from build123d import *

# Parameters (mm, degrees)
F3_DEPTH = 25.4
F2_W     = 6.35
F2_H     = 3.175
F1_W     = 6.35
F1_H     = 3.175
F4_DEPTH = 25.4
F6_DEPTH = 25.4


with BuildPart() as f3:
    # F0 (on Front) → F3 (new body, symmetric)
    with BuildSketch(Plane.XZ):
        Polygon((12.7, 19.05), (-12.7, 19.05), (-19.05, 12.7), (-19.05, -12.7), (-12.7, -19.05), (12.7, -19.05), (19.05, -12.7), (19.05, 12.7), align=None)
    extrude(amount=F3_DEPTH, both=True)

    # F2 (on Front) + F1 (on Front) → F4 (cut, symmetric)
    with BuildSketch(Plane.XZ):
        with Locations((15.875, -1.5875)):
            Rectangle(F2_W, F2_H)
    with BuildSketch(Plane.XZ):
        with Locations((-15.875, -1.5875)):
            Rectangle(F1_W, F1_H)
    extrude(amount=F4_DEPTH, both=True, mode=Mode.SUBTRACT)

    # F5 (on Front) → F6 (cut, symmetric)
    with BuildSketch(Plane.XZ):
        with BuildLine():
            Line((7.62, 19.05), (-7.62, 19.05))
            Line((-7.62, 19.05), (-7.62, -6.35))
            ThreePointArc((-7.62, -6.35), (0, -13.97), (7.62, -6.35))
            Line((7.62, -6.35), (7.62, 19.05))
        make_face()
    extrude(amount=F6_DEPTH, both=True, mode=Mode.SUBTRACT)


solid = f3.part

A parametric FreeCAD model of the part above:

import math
import FreeCAD as App
import Part
import Sketcher

V = App.Vector
Q = App.Units.Quantity

doc = App.newDocument("Part")
body = doc.addObject("PartDesign::Body", "Body")

sketch1 = body.newObject("Sketcher::SketchObject", "Sketch")
sketch1.AttachmentSupport = (doc.getObject("XZ_Plane"), [""])
sketch1.MapMode = "FlatFace"
sketch1.addGeometry(Part.LineSegment(V(12.7, 19.05, 0), V(-12.7, 19.05, 0)), False)
sketch1.addGeometry(Part.LineSegment(V(-12.7, 19.05, 0), V(-19.05, 12.7, 0)), False)
sketch1.addGeometry(Part.LineSegment(V(-19.05, 12.7, 0), V(-19.05, -12.7, 0)), False)
sketch1.addGeometry(Part.LineSegment(V(-19.05, -12.7, 0), V(-12.7, -19.05, 0)), False)
sketch1.addGeometry(Part.LineSegment(V(-12.7, -19.05, 0), V(12.7, -19.05, 0)), False)
sketch1.addGeometry(Part.LineSegment(V(12.7, -19.05, 0), V(19.05, -12.7, 0)), False)
sketch1.addGeometry(Part.LineSegment(V(19.05, -12.7, 0), V(19.05, 12.7, 0)), False)
sketch1.addGeometry(Part.LineSegment(V(19.05, 12.7, 0), V(12.7, 19.05, 0)), False)
sketch1.addConstraint(Sketcher.Constraint("Coincident", 0, 2, 1, 1))
sketch1.addConstraint(Sketcher.Constraint("Coincident", 1, 2, 2, 1))
sketch1.addConstraint(Sketcher.Constraint("Coincident", 2, 2, 3, 1))
sketch1.addConstraint(Sketcher.Constraint("Coincident", 3, 2, 4, 1))
sketch1.addConstraint(Sketcher.Constraint("Coincident", 4, 2, 5, 1))
sketch1.addConstraint(Sketcher.Constraint("Coincident", 5, 2, 6, 1))
sketch1.addConstraint(Sketcher.Constraint("Coincident", 6, 2, 7, 1))
sketch1.addConstraint(Sketcher.Constraint("Coincident", 7, 2, 0, 1))
sketch1.addConstraint(Sketcher.Constraint("Horizontal", 0))
sketch1.addConstraint(Sketcher.Constraint("Vertical", 2))
sketch1.addConstraint(Sketcher.Constraint("Horizontal", 4))
sketch1.addConstraint(Sketcher.Constraint("Vertical", 6))
sketch1.addConstraint(Sketcher.Constraint("Symmetric", 0, 2, 4, 2, -1, 1))
sketch1.addConstraint(Sketcher.Constraint("Symmetric", 1, 2, 5, 2, -1, 1))
sketch1.addConstraint(Sketcher.Constraint("Perpendicular", 1, 3))
sketch1.addConstraint(Sketcher.Constraint("Perpendicular", 5, 7))
sketch1.addConstraint(Sketcher.Constraint("Horizontal", 2, 2, 5, 2))
sketch1.addConstraint(Sketcher.Constraint("Horizontal", 1, 2, 6, 2))
sketch1.addConstraint(Sketcher.Constraint("Vertical", 0, 2, 3, 2))
sketch1.addConstraint(Sketcher.Constraint("Equal", 4, 2))
sketch1.addConstraint(Sketcher.Constraint("DistanceX", 0, 2, 0, 1, Q("1 in")))
sketch1.addConstraint(Sketcher.Constraint("DistanceY", 3, 2, 0, 2, Q("1.5 in")))
pad1 = body.newObject("PartDesign::Pad", "Pad")
pad1.Profile = sketch1
pad1.Length = Q("2 in")
pad1.Midplane = True

sketch2 = body.newObject("Sketcher::SketchObject", "Sketch001")
sketch2.AttachmentSupport = (doc.getObject("XZ_Plane"), [""])
sketch2.MapMode = "FlatFace"
sketch2.addGeometry(Part.LineSegment(V(12.7, 0, 0), V(12.7, -3.175, 0)), False)
sketch2.addGeometry(Part.LineSegment(V(12.7, -3.175, 0), V(19.05, -3.175, 0)), False)
sketch2.addGeometry(Part.LineSegment(V(19.05, -3.175, 0), V(19.05, 0, 0)), False)
sketch2.addGeometry(Part.LineSegment(V(19.05, 0, 0), V(12.7, 0, 0)), False)
sketch2.addGeometry(Part.LineSegment(V(-19.05, 0, 0), V(-19.05, -3.175, 0)), False)
sketch2.addGeometry(Part.LineSegment(V(-19.05, -3.175, 0), V(-12.7, -3.175, 0)), False)
sketch2.addGeometry(Part.LineSegment(V(-12.7, -3.175, 0), V(-12.7, 0, 0)), False)
sketch2.addGeometry(Part.LineSegment(V(-12.7, 0, 0), V(-19.05, 0, 0)), False)
sketch2.addConstraint(Sketcher.Constraint("Coincident", 0, 2, 1, 1))
sketch2.addConstraint(Sketcher.Constraint("Coincident", 1, 2, 2, 1))
sketch2.addConstraint(Sketcher.Constraint("Coincident", 2, 2, 3, 1))
sketch2.addConstraint(Sketcher.Constraint("Coincident", 3, 2, 0, 1))
sketch2.addConstraint(Sketcher.Constraint("Coincident", 4, 2, 5, 1))
sketch2.addConstraint(Sketcher.Constraint("Coincident", 5, 2, 6, 1))
sketch2.addConstraint(Sketcher.Constraint("Coincident", 6, 2, 7, 1))
sketch2.addConstraint(Sketcher.Constraint("Coincident", 7, 2, 4, 1))
sketch2.addConstraint(Sketcher.Constraint("Vertical", 0))
sketch2.addConstraint(Sketcher.Constraint("Horizontal", 1))
sketch2.addConstraint(Sketcher.Constraint("Vertical", 2))
sketch2.addConstraint(Sketcher.Constraint("Horizontal", 3))
sketch2.addConstraint(Sketcher.Constraint("Vertical", 4))
sketch2.addConstraint(Sketcher.Constraint("Horizontal", 5))
sketch2.addConstraint(Sketcher.Constraint("Vertical", 6))
sketch2.addConstraint(Sketcher.Constraint("Horizontal", 7))
sketch2.addConstraint(Sketcher.Constraint("Symmetric", 3, 2, 6, 2, -1, 1))
sketch2.addConstraint(Sketcher.Constraint("Symmetric", 1, 2, 4, 2, -2))
sketch2.addConstraint(Sketcher.Constraint("PointOnObject", 2, 2, -1))
sketch2.addConstraint(Sketcher.Constraint("DistanceX", 5, 2, 0, 2, Q("1 in")))
sketch2.addConstraint(Sketcher.Constraint("DistanceX", 1, 1, 1, 2, Q("0.25 in")))
sketch2.addConstraint(Sketcher.Constraint("DistanceY", 0, 2, 0, 1, Q("0.125 in")))
pocket1 = body.newObject("PartDesign::Pocket", "Pocket")
pocket1.Profile = sketch2
pocket1.Length = Q("2 in")
pocket1.Midplane = True

sketch3 = body.newObject("Sketcher::SketchObject", "Sketch002")
sketch3.AttachmentSupport = (doc.getObject("XZ_Plane"), [""])
sketch3.MapMode = "FlatFace"
sketch3.addGeometry(Part.LineSegment(V(7.62, 19.05, 0), V(-7.62, 19.05, 0)), False)
sketch3.addGeometry(Part.LineSegment(V(-7.62, 19.05, 0), V(-7.62, -6.35, 0)), False)
sketch3.addGeometry(Part.ArcOfCircle(Part.Circle(V(0, -6.35, 0), V(0, 0, 1), 7.62), math.radians(180), math.radians(360)), False)
sketch3.addGeometry(Part.LineSegment(V(7.62, -6.35, 0), V(7.62, 19.05, 0)), False)
sketch3.addConstraint(Sketcher.Constraint("Coincident", 0, 2, 1, 1))
sketch3.addConstraint(Sketcher.Constraint("Tangent", 1, 2, 2, 1))
sketch3.addConstraint(Sketcher.Constraint("Tangent", 2, 2, 3, 1))
sketch3.addConstraint(Sketcher.Constraint("Coincident", 3, 2, 0, 1))
sketch3.addConstraint(Sketcher.Constraint("Horizontal", 0))
sketch3.addConstraint(Sketcher.Constraint("Vertical", 1))
sketch3.addConstraint(Sketcher.Constraint("Vertical", 3))
sketch3.addConstraint(Sketcher.Constraint("PointOnObject", 2, 3, -2))
sketch3.addConstraint(Sketcher.Constraint("Radius", 2, Q("0.3 in")))
sketch3.addConstraint(Sketcher.Constraint("DistanceY", 1, 2, 1, 1, Q("1 in")))
sketch3.addConstraint(Sketcher.Constraint("DistanceY", 2, 3, -1, 1, Q("0.25 in")))
pocket2 = body.newObject("PartDesign::Pocket", "Pocket001")
pocket2.Profile = sketch3
pocket2.Length = Q("2 in")
pocket2.Midplane = True

doc.recompute()
